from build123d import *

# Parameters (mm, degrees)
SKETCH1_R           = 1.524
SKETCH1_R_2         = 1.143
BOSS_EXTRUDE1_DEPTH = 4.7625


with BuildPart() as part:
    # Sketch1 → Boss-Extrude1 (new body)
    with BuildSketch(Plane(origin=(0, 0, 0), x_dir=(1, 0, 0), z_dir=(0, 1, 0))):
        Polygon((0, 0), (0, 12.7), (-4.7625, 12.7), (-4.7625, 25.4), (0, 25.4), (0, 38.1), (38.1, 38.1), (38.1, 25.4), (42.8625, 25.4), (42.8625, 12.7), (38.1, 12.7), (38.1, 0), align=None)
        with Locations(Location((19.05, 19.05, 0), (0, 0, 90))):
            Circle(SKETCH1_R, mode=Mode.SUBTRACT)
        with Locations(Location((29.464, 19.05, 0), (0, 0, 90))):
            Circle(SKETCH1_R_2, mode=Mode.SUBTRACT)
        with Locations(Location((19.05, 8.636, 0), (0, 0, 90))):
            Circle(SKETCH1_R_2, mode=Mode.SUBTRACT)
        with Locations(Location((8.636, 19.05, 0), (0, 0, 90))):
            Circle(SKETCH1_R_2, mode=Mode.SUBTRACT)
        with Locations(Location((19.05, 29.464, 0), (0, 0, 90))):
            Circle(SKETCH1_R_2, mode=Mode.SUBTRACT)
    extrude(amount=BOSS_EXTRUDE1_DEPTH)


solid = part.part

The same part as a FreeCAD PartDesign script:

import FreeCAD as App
import Part
import Sketcher

V = App.Vector
Q = App.Units.Quantity

doc = App.newDocument("Part")
body = doc.addObject("PartDesign::Body", "Body")

# Sketch on XZ plane
sketch1 = body.newObject("Sketcher::SketchObject", "Sketch")
sketch1.AttachmentSupport = (doc.getObject("XZ_Plane"), [""])
sketch1.MapMode = "FlatFace"
sketch1.addGeometry([
    Part.LineSegment(V(0, -12.7, 0), V(0, 0, 0)),  # 0
    Part.LineSegment(V(0, 0, 0), V(38.1, 0, 0)),  # 1
    Part.LineSegment(V(38.1, 0, 0), V(38.1, -12.7, 0)),  # 2
    Part.LineSegment(V(38.1, -12.7, 0), V(42.8625, -12.7, 0)),  # 3
    Part.LineSegment(V(42.8625, -12.7, 0), V(42.8625, -25.4, 0)),  # 4
    Part.LineSegment(V(42.8625, -25.4, 0), V(38.1, -25.4, 0)),  # 5
    Part.LineSegment(V(38.1, -25.4, 0), V(38.1, -38.1, 0)),  # 6
    Part.LineSegment(V(38.1, -38.1, 0), V(0, -38.1, 0)),  # 7
    Part.LineSegment(V(0, -38.1, 0), V(0, -25.4, 0)),  # 8
    Part.LineSegment(V(0, -25.4, 0), V(-4.7625, -25.4, 0)),  # 9
    Part.LineSegment(V(-4.7625, -25.4, 0), V(-4.7625, -12.7, 0)),  # 10
    Part.LineSegment(V(-4.7625, -12.7, 0), V(0, -12.7, 0)),  # 11
    Part.Circle(V(19.05, -8.636, 0), V(0, 0, 1), 1.143),  # 12
    Part.Circle(V(29.464, -19.05, 0), V(0, 0, 1), 1.143),  # 13
    Part.Circle(V(19.05, -19.05, 0), V(0, 0, 1), 1.524),  # 14
    Part.Circle(V(19.05, -29.464, 0), V(0, 0, 1), 1.143),  # 15
    Part.Circle(V(8.636, -19.05, 0), V(0, 0, 1), 1.143),  # 16
], False)
sketch1.addConstraint([
    Sketcher.Constraint("Coincident", 0, 2, 1, 1),
    Sketcher.Constraint("Coincident", 1, 2, 2, 1),
    Sketcher.Constraint("Coincident", 2, 2, 3, 1),
    Sketcher.Constraint("Coincident", 3, 2, 4, 1),
    Sketcher.Constraint("Coincident", 4, 2, 5, 1),
    Sketcher.Constraint("Coincident", 5, 2, 6, 1),
    Sketcher.Constraint("Coincident", 6, 2, 7, 1),
    Sketcher.Constraint("Coincident", 7, 2, 8, 1),
    Sketcher.Constraint("Coincident", 8, 2, 9, 1),
    Sketcher.Constraint("Coincident", 9, 2, 10, 1),
    Sketcher.Constraint("Coincident", 10, 2, 11, 1),
    Sketcher.Constraint("Coincident", 11, 2, 0, 1),
    Sketcher.Constraint("Vertical", 0),
    Sketcher.Constraint("Horizontal", 1),
    Sketcher.Constraint("Vertical", 2),
    Sketcher.Constraint("Horizontal", 3),
    Sketcher.Constraint("Vertical", 4),
    Sketcher.Constraint("Horizontal", 5),
    Sketcher.Constraint("Vertical", 6),
    Sketcher.Constraint("Horizontal", 7),
    Sketcher.Constraint("Vertical", 8),
    Sketcher.Constraint("Horizontal", 9),
    Sketcher.Constraint("Vertical", 10),
    Sketcher.Constraint("Horizontal", 11),
    Sketcher.Constraint("Coincident", 0, 2, -1, 1),
    Sketcher.Constraint("Equal", 12, 13),
    Sketcher.Constraint("Equal", 13, 15),
    Sketcher.Constraint("Equal", 15, 16),
    Sketcher.Constraint("PointOnObject", 7, 2, -2),
    Sketcher.Constraint("Horizontal", 13, 3, 14, 3),
    Sketcher.Constraint("Horizontal", 14, 3, 16, 3),
    Sketcher.Constraint("Horizontal", 5, 2, 8, 2),
    Sketcher.Constraint("Horizontal", 3, 2, 10, 2),
    Sketcher.Constraint("Vertical", 12, 3, 14, 3),
    Sketcher.Constraint("Vertical", 14, 3, 15, 3),
    Sketcher.Constraint("Vertical", 2, 2, 5, 2),
    Sketcher.Constraint("Equal", 5, 9),
    Sketcher.Constraint("Equal", 2, 4),
    Sketcher.Constraint("Equal", 4, 6),
    Sketcher.Constraint("Diameter", 12, Q("0.09 in")),
    Sketcher.Constraint("Diameter", 14, Q("0.12 in")),
    Sketcher.Constraint("DistanceX", 1, 1, 1, 2, Q("1.5 in")),
    Sketcher.Constraint("DistanceY", 0, 1, 0, 2, Q("0.5 in")),
    Sketcher.Constraint("DistanceX", 3, 1, 3, 2, Q("0.1875 in")),
    Sketcher.Constraint("DistanceX", -1, 1, 12, 3, Q("0.75 in")),
    Sketcher.Constraint("DistanceY", 12, 3, -1, 1, Q("0.34 in")),
    Sketcher.Constraint("DistanceX", -1, 1, 13, 3, Q("1.16 in")),
    Sketcher.Constraint("DistanceY", 13, 3, -1, 1, Q("0.75 in")),
    Sketcher.Constraint("DistanceY", 15, 3, -1, 1, Q("1.16 in")),
    Sketcher.Constraint("DistanceX", -1, 1, 16, 3, Q("0.34 in")),
])
pad1 = body.newObject("PartDesign::Pad", "Pad")
pad1.Profile = sketch1
pad1.Length = Q("0.1875 in")
pad1.Reversed = True

doc.recompute()
